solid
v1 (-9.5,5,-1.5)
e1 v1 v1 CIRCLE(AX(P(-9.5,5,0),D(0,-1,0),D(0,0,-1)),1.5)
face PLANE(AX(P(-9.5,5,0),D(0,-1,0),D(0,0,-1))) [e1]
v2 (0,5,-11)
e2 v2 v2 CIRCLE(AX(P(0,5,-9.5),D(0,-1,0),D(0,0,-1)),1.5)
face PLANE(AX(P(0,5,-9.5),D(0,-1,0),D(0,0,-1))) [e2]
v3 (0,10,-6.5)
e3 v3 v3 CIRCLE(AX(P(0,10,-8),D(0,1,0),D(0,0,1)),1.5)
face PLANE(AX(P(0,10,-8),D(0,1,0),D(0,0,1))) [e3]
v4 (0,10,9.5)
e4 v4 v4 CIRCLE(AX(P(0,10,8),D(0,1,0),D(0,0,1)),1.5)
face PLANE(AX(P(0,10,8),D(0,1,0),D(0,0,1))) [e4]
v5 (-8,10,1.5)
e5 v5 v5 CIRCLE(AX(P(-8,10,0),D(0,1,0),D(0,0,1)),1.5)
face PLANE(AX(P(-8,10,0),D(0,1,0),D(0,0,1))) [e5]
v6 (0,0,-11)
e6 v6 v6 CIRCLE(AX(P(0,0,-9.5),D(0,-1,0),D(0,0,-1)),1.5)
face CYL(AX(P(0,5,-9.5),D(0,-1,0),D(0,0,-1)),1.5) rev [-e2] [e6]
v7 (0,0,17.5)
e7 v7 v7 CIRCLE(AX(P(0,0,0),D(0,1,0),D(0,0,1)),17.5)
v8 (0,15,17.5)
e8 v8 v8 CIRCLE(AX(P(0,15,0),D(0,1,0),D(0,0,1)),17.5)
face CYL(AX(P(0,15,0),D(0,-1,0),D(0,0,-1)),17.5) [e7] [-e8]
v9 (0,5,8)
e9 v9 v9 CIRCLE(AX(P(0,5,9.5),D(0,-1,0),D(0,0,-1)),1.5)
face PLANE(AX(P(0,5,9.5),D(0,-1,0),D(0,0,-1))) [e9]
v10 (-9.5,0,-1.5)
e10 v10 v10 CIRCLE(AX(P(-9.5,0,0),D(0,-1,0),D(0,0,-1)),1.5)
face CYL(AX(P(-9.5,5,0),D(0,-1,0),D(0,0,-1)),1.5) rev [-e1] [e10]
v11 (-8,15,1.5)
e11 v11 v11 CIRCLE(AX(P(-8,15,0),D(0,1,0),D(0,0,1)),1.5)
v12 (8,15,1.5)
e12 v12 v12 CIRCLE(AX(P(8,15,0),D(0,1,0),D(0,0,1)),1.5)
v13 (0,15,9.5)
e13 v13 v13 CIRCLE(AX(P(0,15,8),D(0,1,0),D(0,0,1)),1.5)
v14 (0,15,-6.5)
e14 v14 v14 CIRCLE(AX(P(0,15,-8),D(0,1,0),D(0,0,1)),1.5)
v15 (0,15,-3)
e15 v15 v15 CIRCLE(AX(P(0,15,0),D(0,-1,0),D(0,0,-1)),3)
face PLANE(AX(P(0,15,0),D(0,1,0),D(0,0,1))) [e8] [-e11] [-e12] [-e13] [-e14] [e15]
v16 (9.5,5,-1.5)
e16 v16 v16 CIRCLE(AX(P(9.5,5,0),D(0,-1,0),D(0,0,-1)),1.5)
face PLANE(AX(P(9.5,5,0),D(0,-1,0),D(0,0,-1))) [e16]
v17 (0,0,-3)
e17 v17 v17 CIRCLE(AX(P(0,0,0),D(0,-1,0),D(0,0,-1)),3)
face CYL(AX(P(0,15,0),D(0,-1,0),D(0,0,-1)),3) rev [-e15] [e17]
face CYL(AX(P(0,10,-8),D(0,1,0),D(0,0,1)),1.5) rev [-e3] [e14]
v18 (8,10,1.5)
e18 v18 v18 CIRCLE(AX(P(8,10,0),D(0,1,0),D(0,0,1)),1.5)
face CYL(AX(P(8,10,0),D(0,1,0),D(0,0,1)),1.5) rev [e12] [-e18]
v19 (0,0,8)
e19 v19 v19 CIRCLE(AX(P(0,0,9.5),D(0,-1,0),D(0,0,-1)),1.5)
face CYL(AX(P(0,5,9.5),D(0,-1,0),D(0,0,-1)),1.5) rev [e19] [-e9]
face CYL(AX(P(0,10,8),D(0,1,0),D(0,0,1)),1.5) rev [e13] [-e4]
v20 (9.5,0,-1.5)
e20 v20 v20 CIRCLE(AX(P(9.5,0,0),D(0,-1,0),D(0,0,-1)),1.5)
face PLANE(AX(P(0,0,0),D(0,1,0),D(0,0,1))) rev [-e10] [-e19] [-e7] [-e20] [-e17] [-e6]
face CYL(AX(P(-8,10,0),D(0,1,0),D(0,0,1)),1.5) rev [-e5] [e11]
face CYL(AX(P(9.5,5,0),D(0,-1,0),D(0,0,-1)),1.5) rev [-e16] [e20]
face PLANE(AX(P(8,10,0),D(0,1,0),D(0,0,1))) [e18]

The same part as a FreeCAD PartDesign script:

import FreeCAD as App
import Part
import Sketcher

doc = App.newDocument("Part")
body = doc.addObject("PartDesign::Body", "Body")

sketch1 = body.newObject("Sketcher::SketchObject", "Sketch")
sketch1.AttachmentSupport = (doc.getObject("XZ_Plane"), [""])
sketch1.MapMode = "FlatFace"
sketch1.addGeometry(Part.Circle(App.Vector(0, 0, 0), App.Vector(0, 0, 1), 17.5), False)
sketch1.addConstraint([
    Sketcher.Constraint("Coincident", 0, 3, -1, 1),
    Sketcher.Constraint("Diameter", 0, 35.0),
])
pad1 = body.newObject("PartDesign::Pad", "Pad")
pad1.Profile = sketch1
pad1.Length = 15
pad1.Reversed = True

sketch2 = body.newObject("Sketcher::SketchObject", "Sketch001")
sketch2.AttachmentSupport = (doc.getObject("XZ_Plane"), [""])
sketch2.MapMode = "FlatFace"
sketch2.addGeometry(Part.Circle(App.Vector(0, 0, 0), App.Vector(0, 0, 1), 3), False)
sketch2.addConstraint([
    Sketcher.Constraint("Coincident", 0, 3, -1, 1),
    Sketcher.Constraint("Diameter", 0, 6.0),
])
pocket1 = body.newObject("PartDesign::Pocket", "Pocket")
pocket1.Profile = sketch2
pocket1.Type = "ThroughAll"

sketch3 = body.newObject("Sketcher::SketchObject", "Sketch002")
sketch3.AttachmentSupport = (doc.getObject("XZ_Plane"), [""])
sketch3.MapMode = "FlatFace"
sketch3.AttachmentOffset = App.Placement(App.Vector(0, 0, -15), App.Rotation())
sketch3.addGeometry([
    Part.Circle(App.Vector(0, -8, 0), App.Vector(0, 0, 1), 1.5),
    Part.Circle(App.Vector(8, 0, 0), App.Vector(0, 0, 1), 1.5),
    Part.Circle(App.Vector(0, 8, 0), App.Vector(0, 0, 1), 1.5),
    Part.Circle(App.Vector(-8, 0, 0), App.Vector(0, 0, 1), 1.5),
], False)
sketch3.addConstraint([
    Sketcher.Constraint("Equal", 0, 1),
    Sketcher.Constraint("Equal", 1, 2),
    Sketcher.Constraint("Equal", 2, 3),
    Sketcher.Constraint("Symmetric", 0, 3, 2, 3, -1, 1),
    Sketcher.Constraint("Symmetric", 1, 3, 3, 3, -1, 1),
    Sketcher.Constraint("PointOnObject", 0, 3, -2),
    Sketcher.Constraint("PointOnObject", 1, 3, -1),
    Sketcher.Constraint("Diameter", 0, 3.0),
    Sketcher.Constraint("DistanceY", 0, 3, -1, 1, 8.0),
    Sketcher.Constraint("DistanceX", -1, 1, 1, 3, 8.0),
])
pocket2 = body.newObject("PartDesign::Pocket", "Pocket001")
pocket2.Profile = sketch3
pocket2.Length = 5
pocket2.Reversed = True

sketch4 = body.newObject("Sketcher::SketchObject", "Sketch003")
sketch4.AttachmentSupport = (doc.getObject("XZ_Plane"), [""])
sketch4.MapMode = "FlatFace"
sketch4.addGeometry([
    Part.Circle(App.Vector(0, 9.5, 0), App.Vector(0, 0, 1), 1.5),
    Part.Circle(App.Vector(9.5, 0, 0), App.Vector(0, 0, 1), 1.5),
    Part.Circle(App.Vector(0, -9.5, 0), App.Vector(0, 0, 1), 1.5),
    Part.Circle(App.Vector(-9.5, 0, 0), App.Vector(0, 0, 1), 1.5),
], False)
sketch4.addConstraint([
    Sketcher.Constraint("Equal", 0, 1),
    Sketcher.Constraint("Equal", 1, 2),
    Sketcher.Constraint("Equal", 2, 3),
    Sketcher.Constraint("Symmetric", 0, 3, 2, 3, -1, 1),
    Sketcher.Constraint("Symmetric", 1, 3, 3, 3, -1, 1),
    Sketcher.Constraint("PointOnObject", 0, 3, -2),
    Sketcher.Constraint("PointOnObject", 1, 3, -1),
    Sketcher.Constraint("Diameter", 0, 3.0),
    Sketcher.Constraint("DistanceY", 2, 3, 0, 3, 19.0),
    Sketcher.Constraint("DistanceX", 3, 3, 1, 3, 19.0),
])
pocket3 = body.newObject("PartDesign::Pocket", "Pocket002")
pocket3.Profile = sketch4
pocket3.Length = 5

doc.recompute()
